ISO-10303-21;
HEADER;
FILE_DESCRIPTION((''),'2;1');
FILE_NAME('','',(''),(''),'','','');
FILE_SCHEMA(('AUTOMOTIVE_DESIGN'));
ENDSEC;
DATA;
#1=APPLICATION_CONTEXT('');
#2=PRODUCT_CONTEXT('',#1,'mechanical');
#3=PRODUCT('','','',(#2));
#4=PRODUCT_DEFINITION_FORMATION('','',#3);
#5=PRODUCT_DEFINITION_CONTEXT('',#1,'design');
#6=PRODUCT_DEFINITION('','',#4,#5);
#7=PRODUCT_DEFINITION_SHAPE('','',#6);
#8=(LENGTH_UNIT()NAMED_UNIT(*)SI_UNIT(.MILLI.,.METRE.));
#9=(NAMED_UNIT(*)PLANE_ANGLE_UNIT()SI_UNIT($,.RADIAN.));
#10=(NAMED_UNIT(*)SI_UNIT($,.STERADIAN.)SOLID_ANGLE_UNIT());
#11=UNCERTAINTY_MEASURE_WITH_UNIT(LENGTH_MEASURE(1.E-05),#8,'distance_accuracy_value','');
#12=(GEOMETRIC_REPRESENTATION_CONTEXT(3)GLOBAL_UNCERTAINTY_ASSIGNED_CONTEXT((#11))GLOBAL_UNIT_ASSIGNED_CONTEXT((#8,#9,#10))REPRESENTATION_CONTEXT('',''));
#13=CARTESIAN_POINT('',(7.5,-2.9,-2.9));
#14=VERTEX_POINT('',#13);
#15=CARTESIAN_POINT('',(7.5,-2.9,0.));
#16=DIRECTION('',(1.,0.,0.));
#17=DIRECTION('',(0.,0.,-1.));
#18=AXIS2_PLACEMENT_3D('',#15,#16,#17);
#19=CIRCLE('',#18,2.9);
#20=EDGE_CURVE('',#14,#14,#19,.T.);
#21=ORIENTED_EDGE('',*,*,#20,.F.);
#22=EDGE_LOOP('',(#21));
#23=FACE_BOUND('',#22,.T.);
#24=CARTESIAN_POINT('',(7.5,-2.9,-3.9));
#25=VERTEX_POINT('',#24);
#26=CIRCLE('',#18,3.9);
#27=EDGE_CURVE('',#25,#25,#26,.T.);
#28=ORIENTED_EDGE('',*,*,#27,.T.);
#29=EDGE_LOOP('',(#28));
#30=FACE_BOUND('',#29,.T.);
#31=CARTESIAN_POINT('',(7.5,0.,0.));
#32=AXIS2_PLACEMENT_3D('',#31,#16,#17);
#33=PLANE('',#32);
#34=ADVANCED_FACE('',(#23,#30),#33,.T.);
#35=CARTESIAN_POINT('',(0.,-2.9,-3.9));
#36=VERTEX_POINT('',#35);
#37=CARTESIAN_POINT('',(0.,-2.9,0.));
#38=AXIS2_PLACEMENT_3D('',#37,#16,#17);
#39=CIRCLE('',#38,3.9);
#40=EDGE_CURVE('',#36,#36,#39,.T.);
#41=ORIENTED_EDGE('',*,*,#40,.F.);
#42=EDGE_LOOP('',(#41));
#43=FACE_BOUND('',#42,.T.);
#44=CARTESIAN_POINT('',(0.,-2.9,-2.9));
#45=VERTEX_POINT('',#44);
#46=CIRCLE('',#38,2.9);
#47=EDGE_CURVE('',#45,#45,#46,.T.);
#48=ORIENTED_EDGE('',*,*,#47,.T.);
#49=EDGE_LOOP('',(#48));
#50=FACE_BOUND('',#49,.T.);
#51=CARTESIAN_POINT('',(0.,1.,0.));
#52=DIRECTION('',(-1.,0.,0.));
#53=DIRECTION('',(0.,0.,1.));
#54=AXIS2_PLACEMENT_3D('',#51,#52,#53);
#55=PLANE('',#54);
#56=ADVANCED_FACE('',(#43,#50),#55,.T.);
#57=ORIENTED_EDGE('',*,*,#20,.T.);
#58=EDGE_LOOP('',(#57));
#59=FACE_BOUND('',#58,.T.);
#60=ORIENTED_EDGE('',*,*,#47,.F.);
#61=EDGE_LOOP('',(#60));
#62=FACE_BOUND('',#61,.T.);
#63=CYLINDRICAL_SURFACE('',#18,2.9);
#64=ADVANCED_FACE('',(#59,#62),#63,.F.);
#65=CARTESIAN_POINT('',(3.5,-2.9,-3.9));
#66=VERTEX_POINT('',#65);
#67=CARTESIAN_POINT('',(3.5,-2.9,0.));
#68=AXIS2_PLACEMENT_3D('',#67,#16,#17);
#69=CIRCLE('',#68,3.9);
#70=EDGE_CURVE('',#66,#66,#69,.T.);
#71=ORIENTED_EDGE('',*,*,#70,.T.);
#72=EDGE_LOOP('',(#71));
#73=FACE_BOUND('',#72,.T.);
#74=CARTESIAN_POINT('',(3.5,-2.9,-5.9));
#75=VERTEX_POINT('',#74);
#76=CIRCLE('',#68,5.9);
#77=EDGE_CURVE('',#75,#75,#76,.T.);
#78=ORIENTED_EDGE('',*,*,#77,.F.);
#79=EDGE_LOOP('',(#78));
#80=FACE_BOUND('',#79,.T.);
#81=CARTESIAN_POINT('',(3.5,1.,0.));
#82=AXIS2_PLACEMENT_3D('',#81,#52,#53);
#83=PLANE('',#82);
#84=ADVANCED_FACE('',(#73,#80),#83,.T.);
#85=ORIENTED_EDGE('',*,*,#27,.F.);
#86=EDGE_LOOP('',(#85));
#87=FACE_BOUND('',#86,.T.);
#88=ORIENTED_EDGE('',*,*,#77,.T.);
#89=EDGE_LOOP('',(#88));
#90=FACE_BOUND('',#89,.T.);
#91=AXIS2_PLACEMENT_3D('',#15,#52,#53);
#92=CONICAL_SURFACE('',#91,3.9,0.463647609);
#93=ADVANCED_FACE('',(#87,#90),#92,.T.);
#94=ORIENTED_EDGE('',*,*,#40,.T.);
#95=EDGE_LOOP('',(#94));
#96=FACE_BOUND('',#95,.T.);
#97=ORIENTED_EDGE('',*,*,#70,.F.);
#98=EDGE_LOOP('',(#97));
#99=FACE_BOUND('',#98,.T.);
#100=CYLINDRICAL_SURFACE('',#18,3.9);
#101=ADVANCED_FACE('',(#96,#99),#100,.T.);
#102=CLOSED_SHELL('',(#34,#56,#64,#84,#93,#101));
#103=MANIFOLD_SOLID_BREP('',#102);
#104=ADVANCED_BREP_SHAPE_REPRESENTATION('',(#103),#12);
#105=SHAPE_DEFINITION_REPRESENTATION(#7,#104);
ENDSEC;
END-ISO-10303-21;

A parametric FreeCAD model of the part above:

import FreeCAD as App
import Part
import Sketcher

V = App.Vector
Q = App.Units.Quantity

doc = App.newDocument("Part")
body = doc.addObject("PartDesign::Body", "Body")

sketch1 = body.newObject("Sketcher::SketchObject", "Sketch")
sketch1.AttachmentSupport = (doc.getObject("XY_Plane"), [""])
sketch1.MapMode = "FlatFace"
sketch1.addGeometry([
    Part.LineSegment(V(0, 0, 0), V(7.5, 0, 0)),
    Part.LineSegment(V(7.5, 0, 0), V(7.5, 1, 0)),
    Part.LineSegment(V(7.5, 1, 0), V(3.5, 3, 0)),
    Part.LineSegment(V(3.5, 3, 0), V(3.5, 1, 0)),
    Part.LineSegment(V(3.5, 1, 0), V(0, 1, 0)),
    Part.LineSegment(V(0, 1, 0), V(0, 0, 0)),
], False)
sketch1.addGeometry(Part.LineSegment(V(7.5, -2.9, 0), V(0, -2.9, 0)), True)
sketch1.addConstraint([
    Sketcher.Constraint("Coincident", 0, 2, 1, 1),
    Sketcher.Constraint("Coincident", 1, 2, 2, 1),
    Sketcher.Constraint("Coincident", 2, 2, 3, 1),
    Sketcher.Constraint("Coincident", 3, 2, 4, 1),
    Sketcher.Constraint("Coincident", 4, 2, 5, 1),
    Sketcher.Constraint("Coincident", 5, 2, 0, 1),
    Sketcher.Constraint("Horizontal", 0),
    Sketcher.Constraint("Vertical", 1),
    Sketcher.Constraint("Vertical", 3),
    Sketcher.Constraint("Horizontal", 4),
    Sketcher.Constraint("Vertical", 5),
    Sketcher.Constraint("Horizontal", 6),
    Sketcher.Constraint("Coincident", 5, 2, -1, 1),
    Sketcher.Constraint("PointOnObject", 6, 2, -2),
    Sketcher.Constraint("Horizontal", 1, 2, 3, 2),
    Sketcher.Constraint("Vertical", 1, 2, 6, 1),
    Sketcher.Constraint("DistanceY", 1, 1, 1, 2, Q("1 mm")),
    Sketcher.Constraint("DistanceY", 3, 2, 3, 1, Q("2 mm")),
    Sketcher.Constraint("DistanceX", 0, 1, 0, 2, Q("7.5 mm")),
    Sketcher.Constraint("DistanceX", 4, 2, 4, 1, Q("3.5 mm")),
    Sketcher.Constraint("DistanceY", 6, 1, -1, 1, Q("2.9 mm")),
])
revolution = body.newObject("PartDesign::Revolution", "Revolution")
revolution.Profile = sketch1
revolution.ReferenceAxis = (sketch1, ["Axis0"])
revolution.Angle = 360

doc.recompute()
